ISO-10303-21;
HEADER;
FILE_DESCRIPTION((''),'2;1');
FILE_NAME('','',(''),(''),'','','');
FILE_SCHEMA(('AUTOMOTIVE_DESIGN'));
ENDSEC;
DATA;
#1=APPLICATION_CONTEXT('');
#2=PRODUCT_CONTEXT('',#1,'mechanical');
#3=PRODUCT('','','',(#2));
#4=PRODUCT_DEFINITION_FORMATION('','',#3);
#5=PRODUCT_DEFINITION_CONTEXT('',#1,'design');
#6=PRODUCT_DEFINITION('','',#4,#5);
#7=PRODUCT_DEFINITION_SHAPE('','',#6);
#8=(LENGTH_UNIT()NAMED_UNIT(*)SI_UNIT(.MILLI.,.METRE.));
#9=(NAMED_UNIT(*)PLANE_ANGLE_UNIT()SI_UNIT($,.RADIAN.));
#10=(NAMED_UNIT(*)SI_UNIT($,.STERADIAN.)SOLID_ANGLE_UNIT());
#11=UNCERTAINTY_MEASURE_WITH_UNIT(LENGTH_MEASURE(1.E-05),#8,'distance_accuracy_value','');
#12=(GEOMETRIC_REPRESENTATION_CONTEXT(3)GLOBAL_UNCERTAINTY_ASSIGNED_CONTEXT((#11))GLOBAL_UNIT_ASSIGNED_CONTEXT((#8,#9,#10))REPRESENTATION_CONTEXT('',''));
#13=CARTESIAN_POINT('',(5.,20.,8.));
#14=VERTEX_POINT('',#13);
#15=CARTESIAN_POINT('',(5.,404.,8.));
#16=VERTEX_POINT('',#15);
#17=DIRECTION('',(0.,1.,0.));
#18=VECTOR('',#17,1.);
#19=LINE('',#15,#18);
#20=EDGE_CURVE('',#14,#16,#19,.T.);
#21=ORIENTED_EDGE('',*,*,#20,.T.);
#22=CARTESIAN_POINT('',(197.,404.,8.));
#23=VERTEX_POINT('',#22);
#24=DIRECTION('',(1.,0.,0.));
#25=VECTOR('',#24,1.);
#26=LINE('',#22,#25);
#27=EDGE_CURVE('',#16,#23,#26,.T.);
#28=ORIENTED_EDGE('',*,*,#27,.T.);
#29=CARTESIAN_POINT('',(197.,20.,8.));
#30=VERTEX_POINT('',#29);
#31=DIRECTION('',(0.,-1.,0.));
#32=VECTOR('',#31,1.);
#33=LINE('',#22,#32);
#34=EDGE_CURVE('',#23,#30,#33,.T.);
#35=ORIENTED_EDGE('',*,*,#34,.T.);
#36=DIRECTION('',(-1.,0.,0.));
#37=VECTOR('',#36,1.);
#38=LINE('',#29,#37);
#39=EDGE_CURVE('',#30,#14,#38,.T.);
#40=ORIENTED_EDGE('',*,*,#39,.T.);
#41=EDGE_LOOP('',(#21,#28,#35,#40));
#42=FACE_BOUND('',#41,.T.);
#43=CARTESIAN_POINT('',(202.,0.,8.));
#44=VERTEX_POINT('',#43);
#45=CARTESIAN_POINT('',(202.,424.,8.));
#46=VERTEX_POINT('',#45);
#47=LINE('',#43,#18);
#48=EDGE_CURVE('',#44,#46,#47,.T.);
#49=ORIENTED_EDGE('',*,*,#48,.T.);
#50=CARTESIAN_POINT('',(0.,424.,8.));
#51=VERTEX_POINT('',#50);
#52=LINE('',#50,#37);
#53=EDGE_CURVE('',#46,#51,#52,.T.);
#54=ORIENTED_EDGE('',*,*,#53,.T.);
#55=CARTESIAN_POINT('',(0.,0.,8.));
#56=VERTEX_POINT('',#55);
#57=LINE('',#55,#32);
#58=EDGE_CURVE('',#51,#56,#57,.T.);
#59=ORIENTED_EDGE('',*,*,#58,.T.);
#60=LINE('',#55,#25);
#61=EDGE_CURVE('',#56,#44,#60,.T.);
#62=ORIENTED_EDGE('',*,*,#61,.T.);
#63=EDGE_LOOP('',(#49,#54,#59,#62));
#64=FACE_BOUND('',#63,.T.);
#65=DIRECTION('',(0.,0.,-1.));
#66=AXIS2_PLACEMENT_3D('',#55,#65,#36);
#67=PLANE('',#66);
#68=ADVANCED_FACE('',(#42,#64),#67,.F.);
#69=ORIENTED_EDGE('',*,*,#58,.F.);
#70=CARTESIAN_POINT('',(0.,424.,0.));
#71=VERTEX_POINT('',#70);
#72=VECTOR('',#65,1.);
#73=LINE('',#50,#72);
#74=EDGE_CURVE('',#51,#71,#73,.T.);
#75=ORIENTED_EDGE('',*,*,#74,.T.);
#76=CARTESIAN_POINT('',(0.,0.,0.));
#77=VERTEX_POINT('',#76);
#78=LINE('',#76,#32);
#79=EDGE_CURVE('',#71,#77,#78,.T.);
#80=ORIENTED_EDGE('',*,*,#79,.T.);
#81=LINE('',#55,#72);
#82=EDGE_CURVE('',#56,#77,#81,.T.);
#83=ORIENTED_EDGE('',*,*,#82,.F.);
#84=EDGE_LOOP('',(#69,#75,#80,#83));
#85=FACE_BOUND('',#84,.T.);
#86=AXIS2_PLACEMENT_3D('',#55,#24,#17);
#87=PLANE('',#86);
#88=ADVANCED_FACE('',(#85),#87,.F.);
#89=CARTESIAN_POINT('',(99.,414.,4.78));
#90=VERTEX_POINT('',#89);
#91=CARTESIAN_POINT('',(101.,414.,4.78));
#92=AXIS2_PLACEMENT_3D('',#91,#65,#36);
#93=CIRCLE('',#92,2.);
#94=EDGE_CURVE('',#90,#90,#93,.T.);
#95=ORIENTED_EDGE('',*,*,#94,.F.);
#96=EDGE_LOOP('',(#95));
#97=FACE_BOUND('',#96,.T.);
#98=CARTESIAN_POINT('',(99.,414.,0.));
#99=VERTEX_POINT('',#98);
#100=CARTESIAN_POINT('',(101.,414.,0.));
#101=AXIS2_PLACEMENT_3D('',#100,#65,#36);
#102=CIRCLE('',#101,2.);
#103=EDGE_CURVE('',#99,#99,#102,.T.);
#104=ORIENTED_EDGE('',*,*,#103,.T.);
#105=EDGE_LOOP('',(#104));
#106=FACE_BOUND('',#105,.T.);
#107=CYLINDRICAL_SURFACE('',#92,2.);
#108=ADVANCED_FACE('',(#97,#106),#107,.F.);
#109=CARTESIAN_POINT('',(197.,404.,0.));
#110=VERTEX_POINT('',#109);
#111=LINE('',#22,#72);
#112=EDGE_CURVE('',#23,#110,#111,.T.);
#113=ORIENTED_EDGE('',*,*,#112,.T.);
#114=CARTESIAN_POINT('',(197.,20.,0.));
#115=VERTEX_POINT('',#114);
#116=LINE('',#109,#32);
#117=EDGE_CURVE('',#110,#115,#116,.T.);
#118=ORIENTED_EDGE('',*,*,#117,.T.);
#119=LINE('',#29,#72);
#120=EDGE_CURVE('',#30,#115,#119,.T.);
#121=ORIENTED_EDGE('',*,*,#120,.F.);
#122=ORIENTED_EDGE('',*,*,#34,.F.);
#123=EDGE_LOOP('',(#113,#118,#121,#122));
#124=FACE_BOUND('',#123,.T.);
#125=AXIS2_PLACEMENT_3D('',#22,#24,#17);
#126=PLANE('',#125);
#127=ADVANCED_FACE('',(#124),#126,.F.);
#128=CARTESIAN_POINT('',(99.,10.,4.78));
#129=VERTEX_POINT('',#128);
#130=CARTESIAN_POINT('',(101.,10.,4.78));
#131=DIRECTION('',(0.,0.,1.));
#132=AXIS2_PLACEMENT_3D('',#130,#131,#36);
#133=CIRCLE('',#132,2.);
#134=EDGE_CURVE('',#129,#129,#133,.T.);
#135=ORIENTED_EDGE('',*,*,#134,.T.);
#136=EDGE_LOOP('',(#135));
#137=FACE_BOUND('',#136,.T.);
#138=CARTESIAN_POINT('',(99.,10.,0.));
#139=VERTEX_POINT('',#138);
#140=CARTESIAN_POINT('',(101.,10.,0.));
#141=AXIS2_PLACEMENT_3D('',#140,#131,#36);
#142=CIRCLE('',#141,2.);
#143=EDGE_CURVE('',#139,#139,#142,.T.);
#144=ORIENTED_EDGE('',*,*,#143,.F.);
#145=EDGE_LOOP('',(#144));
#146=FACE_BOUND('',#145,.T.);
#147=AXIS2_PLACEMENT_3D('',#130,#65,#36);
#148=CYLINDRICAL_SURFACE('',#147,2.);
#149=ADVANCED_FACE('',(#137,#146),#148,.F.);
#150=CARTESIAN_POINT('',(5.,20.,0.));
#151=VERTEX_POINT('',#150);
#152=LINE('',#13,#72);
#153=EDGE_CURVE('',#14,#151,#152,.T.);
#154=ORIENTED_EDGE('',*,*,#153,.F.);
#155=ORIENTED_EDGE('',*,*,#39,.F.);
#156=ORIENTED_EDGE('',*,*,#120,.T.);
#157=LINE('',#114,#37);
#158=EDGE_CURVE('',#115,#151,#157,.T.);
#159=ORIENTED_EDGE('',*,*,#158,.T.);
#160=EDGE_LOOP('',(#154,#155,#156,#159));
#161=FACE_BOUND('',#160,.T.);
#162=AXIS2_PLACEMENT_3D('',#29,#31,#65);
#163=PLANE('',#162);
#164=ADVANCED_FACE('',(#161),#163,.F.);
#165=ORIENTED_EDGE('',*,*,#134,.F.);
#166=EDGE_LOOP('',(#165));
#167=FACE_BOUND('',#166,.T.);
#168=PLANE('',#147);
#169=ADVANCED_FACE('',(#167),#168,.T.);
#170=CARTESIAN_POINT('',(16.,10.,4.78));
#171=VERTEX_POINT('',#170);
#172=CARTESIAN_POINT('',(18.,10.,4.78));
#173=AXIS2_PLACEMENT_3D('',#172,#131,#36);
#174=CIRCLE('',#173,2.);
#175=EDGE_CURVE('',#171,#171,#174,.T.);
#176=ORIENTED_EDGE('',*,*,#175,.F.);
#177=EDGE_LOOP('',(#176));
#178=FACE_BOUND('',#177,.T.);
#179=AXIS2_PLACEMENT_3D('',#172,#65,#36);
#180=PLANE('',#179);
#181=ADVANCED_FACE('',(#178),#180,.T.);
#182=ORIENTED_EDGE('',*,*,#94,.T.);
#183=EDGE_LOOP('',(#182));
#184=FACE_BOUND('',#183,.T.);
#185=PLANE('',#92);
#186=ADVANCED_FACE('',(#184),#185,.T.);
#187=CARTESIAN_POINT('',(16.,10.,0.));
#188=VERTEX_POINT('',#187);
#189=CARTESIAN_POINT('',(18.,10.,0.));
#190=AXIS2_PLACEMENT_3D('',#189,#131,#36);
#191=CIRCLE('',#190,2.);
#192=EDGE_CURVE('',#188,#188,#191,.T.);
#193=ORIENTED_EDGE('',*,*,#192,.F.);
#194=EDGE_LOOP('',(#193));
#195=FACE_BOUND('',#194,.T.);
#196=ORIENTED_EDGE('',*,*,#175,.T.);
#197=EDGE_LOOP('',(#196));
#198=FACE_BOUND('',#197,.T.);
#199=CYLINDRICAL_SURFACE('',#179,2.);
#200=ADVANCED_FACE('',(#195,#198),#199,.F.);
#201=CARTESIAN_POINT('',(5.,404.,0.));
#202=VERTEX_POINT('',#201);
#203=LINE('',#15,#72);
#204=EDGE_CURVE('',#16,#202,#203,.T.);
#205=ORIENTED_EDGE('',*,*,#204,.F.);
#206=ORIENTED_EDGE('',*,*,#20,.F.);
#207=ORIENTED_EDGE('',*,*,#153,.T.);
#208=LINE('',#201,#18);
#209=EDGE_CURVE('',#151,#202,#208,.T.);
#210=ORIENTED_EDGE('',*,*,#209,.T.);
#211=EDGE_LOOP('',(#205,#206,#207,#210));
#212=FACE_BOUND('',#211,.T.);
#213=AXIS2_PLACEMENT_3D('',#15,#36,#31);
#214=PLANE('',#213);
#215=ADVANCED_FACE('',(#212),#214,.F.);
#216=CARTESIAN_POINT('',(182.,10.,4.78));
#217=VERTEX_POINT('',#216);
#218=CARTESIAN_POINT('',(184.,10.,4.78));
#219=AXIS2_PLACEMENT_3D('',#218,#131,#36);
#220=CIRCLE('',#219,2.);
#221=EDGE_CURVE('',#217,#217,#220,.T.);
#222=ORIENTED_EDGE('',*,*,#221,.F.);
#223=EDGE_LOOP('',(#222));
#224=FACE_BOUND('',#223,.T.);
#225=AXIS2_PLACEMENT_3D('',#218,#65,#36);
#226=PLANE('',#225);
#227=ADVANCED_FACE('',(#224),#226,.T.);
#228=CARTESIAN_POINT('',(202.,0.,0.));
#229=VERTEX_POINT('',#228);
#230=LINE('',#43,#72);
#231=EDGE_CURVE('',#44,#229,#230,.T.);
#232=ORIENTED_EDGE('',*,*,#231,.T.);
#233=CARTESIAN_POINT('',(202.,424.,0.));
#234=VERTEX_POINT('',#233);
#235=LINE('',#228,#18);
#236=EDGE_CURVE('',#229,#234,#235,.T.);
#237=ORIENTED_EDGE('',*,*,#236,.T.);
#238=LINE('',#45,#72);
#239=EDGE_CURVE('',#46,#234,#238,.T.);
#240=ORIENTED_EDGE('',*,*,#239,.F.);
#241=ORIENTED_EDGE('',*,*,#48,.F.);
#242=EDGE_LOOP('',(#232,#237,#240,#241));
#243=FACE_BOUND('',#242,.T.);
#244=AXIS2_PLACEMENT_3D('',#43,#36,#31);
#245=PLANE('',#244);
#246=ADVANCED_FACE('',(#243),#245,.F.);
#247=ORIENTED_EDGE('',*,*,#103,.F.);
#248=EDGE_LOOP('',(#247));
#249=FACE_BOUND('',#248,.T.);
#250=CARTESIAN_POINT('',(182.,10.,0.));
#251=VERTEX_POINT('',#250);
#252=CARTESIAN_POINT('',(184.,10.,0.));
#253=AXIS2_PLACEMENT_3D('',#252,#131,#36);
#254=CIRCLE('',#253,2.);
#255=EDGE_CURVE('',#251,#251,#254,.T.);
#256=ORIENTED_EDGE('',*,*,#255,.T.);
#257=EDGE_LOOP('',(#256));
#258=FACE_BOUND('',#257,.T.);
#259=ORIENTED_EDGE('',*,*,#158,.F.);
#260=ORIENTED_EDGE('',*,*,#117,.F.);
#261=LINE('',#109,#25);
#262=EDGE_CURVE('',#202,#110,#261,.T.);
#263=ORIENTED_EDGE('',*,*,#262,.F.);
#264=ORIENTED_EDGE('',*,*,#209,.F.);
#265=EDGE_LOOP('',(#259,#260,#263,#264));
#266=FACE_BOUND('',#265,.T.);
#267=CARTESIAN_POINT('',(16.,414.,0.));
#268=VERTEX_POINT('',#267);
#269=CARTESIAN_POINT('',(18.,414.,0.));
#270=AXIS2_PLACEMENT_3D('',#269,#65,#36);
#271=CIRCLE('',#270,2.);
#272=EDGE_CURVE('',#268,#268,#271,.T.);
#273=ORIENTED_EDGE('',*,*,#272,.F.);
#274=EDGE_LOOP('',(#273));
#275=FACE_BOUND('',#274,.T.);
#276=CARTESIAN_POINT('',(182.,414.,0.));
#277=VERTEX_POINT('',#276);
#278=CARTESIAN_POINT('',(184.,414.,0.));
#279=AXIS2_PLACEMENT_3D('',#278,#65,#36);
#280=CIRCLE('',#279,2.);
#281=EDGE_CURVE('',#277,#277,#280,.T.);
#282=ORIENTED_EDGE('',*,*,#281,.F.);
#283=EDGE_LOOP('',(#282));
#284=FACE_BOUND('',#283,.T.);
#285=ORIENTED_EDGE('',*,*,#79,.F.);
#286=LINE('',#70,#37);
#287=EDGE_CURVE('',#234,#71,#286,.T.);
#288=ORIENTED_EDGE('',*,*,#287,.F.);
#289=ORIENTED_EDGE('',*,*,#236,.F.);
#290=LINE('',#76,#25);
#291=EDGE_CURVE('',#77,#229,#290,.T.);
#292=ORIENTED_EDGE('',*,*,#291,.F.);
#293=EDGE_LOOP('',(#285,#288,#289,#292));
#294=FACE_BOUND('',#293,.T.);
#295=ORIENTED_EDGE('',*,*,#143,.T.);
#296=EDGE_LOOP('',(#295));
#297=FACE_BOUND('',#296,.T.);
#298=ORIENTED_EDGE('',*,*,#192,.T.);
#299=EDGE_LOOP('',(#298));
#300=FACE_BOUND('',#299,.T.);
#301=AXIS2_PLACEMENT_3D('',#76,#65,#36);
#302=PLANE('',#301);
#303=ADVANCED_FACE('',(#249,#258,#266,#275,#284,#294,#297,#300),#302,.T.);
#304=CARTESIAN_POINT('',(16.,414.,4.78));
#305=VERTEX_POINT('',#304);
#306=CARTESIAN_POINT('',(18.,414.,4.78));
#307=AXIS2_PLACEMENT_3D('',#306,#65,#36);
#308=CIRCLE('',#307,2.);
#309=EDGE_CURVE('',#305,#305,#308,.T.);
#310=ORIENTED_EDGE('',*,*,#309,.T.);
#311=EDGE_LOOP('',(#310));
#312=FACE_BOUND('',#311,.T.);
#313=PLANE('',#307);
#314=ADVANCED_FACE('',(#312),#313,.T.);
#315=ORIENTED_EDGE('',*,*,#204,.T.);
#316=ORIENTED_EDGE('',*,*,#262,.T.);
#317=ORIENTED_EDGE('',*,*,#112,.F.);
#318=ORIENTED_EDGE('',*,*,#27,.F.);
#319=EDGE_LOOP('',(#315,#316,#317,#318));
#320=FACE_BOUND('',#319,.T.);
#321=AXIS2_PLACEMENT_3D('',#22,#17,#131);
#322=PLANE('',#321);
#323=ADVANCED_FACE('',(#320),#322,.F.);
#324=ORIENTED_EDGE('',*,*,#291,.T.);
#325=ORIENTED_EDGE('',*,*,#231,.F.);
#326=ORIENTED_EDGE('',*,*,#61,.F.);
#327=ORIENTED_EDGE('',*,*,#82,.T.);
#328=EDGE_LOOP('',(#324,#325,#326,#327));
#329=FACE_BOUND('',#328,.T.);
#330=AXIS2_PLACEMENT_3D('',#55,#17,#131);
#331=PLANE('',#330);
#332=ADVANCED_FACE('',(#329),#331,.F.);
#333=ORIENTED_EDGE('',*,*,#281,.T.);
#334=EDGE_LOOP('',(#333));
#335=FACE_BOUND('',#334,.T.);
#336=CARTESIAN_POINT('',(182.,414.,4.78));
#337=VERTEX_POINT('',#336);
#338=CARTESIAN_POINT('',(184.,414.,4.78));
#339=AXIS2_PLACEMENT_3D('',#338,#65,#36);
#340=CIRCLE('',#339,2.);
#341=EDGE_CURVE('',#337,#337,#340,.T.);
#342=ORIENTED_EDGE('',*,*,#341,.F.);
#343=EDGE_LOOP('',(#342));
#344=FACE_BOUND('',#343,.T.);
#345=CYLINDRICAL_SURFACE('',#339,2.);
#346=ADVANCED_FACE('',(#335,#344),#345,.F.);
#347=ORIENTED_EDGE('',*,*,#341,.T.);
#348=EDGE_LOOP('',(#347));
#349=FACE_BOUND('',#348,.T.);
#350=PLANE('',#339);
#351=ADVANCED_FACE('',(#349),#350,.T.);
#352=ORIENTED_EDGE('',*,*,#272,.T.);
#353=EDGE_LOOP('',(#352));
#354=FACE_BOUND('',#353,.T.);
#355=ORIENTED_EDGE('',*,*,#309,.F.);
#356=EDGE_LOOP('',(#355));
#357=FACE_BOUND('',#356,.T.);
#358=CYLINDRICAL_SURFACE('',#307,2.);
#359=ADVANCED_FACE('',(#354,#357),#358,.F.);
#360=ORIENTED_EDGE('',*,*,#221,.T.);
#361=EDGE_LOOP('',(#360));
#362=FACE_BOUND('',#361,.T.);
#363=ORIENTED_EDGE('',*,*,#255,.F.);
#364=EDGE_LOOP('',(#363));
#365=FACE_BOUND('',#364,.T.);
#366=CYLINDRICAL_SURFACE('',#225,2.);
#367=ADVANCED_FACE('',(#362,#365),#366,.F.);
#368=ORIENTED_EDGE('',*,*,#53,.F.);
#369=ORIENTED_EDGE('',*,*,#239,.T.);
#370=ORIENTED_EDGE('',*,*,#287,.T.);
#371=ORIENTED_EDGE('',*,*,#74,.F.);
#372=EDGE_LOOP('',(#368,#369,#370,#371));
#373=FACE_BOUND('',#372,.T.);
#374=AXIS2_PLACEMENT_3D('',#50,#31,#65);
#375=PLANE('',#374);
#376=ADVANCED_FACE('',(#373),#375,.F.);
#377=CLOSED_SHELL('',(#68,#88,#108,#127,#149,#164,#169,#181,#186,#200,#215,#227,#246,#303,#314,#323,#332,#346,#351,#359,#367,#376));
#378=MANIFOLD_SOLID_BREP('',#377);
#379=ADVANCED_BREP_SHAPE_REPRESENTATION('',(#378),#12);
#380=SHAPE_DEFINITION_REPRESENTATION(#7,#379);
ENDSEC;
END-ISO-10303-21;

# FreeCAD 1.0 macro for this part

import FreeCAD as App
import Part
import Sketcher
from FreeCAD import Vector
Q = App.Units.Quantity

doc = App.newDocument("Part")
body = doc.addObject("PartDesign::Body", "Body")

# Sketch on XY plane
sketch1 = body.newObject("Sketcher::SketchObject", "Sketch")
sketch1.AttachmentSupport = (doc.getObject("XY_Plane"), [""])
sketch1.MapMode = "FlatFace"
sketch1.addGeometry([
    Part.LineSegment(Vector(0, 424, 0), Vector(0, 0, 0)),
    Part.LineSegment(Vector(0, 0, 0), Vector(202, 0, 0)),
    Part.LineSegment(Vector(202, 0, 0), Vector(202, 424, 0)),
    Part.LineSegment(Vector(202, 424, 0), Vector(0, 424, 0)),
], False)
sketch1.addConstraint([
    Sketcher.Constraint("Coincident", 0, 2, 1, 1),
    Sketcher.Constraint("Coincident", 1, 2, 2, 1),
    Sketcher.Constraint("Coincident", 2, 2, 3, 1),
    Sketcher.Constraint("Coincident", 3, 2, 0, 1),
    Sketcher.Constraint("Vertical", 0),
    Sketcher.Constraint("Horizontal", 1),
    Sketcher.Constraint("Vertical", 2),
    Sketcher.Constraint("Horizontal", 3),
    Sketcher.Constraint("Coincident", 0, 2, -1, 1),
    Sketcher.Constraint("DistanceX", 1, 1, 1, 2, Q("202 mm")),
    Sketcher.Constraint("DistanceY", 0, 2, 0, 1, Q("424 mm")),
])
pad1 = body.newObject("PartDesign::Pad", "Pad")
pad1.Profile = sketch1
pad1.Length = 8

# Sketch on XY plane
sketch2 = body.newObject("Sketcher::SketchObject", "Sketch001")
sketch2.AttachmentSupport = (doc.getObject("XY_Plane"), [""])
sketch2.MapMode = "FlatFace"
sketch2.addGeometry([
    Part.LineSegment(Vector(197, 404, 0), Vector(197, 20, 0)),
    Part.LineSegment(Vector(197, 20, 0), Vector(5, 20, 0)),
    Part.LineSegment(Vector(5, 20, 0), Vector(5, 404, 0)),
    Part.LineSegment(Vector(5, 404, 0), Vector(197, 404, 0)),
], False)
sketch2.addConstraint([
    Sketcher.Constraint("Coincident", 0, 2, 1, 1),
    Sketcher.Constraint("Coincident", 1, 2, 2, 1),
    Sketcher.Constraint("Coincident", 2, 2, 3, 1),
    Sketcher.Constraint("Coincident", 3, 2, 0, 1),
    Sketcher.Constraint("Vertical", 0),
    Sketcher.Constraint("Horizontal", 1),
    Sketcher.Constraint("Vertical", 2),
    Sketcher.Constraint("Horizontal", 3),
    Sketcher.Constraint("DistanceX", 1, 2, 1, 1, Q("192 mm")),
    Sketcher.Constraint("DistanceY", 0, 2, 0, 1, Q("384 mm")),
    Sketcher.Constraint("DistanceX", -1, 1, 0, 2, Q("197 mm")),
    Sketcher.Constraint("DistanceY", -1, 1, 0, 2, Q("20 mm")),
])
pocket1 = body.newObject("PartDesign::Pocket", "Pocket")
pocket1.Profile = sketch2
pocket1.Type = "ThroughAll"
pocket1.Reversed = True

# Sketch on XY plane
sketch3 = body.newObject("Sketcher::SketchObject", "Sketch002")
sketch3.AttachmentSupport = (doc.getObject("XY_Plane"), [""])
sketch3.MapMode = "FlatFace"
sketch3.addGeometry([
    Part.Circle(Vector(184, 414, 0), Vector(0, 0, 1), 2),
    Part.Circle(Vector(18, 414, 0), Vector(0, 0, 1), 2),
    Part.Circle(Vector(101, 414, 0), Vector(0, 0, 1), 2),
], False)
sketch3.addConstraint([
    Sketcher.Constraint("Equal", 0, 1),
    Sketcher.Constraint("Equal", 1, 2),
    Sketcher.Constraint("Horizontal", 0, 3, 1, 3),
    Sketcher.Constraint("Horizontal", 1, 3, 2, 3),
    Sketcher.Constraint("Diameter", 0, Q("4 mm")),
    Sketcher.Constraint("DistanceX", -1, 1, 0, 3, Q("184 mm")),
    Sketcher.Constraint("DistanceY", -1, 1, 0, 3, Q("414 mm")),
    Sketcher.Constraint("DistanceX", -1, 1, 1, 3, Q("18 mm")),
    Sketcher.Constraint("DistanceX", -1, 1, 2, 3, Q("101 mm")),
])
pocket2 = body.newObject("PartDesign::Pocket", "Pocket001")
pocket2.Profile = sketch3
pocket2.Length = 4.78
pocket2.Reversed = True
doc.recompute()

datumplane = body.newObject("PartDesign::Plane", "DatumPlane")
datumplane.AttachmentSupport = (doc.getObject("XZ_Plane"), [""])
datumplane.MapMode = "FlatFace"
datumplane.AttachmentOffset = App.Placement(Vector(0, 0, -212), App.Rotation())
mirrored = body.newObject("PartDesign::Mirrored", "Mirrored")
mirrored.Originals = [pocket2]
mirrored.MirrorPlane = (datumplane, [""])
body.Tip = mirrored

doc.recompute()
